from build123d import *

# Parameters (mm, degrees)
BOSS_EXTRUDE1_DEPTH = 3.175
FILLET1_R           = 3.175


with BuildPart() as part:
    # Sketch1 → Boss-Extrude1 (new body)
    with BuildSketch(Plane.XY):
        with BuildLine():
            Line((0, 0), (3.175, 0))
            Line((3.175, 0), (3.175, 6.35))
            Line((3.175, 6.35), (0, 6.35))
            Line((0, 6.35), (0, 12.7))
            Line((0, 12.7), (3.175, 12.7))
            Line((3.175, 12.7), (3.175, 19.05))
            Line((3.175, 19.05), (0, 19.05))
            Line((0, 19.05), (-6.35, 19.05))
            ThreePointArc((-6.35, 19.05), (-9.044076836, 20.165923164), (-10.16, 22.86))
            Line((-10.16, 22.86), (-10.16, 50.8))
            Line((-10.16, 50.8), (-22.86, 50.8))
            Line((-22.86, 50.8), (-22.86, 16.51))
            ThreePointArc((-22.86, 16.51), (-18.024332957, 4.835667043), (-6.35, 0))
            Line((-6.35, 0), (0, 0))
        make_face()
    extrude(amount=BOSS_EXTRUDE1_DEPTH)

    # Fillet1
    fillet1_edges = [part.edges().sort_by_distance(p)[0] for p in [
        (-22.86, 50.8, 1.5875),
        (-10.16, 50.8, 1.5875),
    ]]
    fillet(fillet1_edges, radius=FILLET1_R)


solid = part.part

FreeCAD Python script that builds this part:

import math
import FreeCAD as App
import Part
import Sketcher
Q = App.Units.Quantity


def edges_at(feature, points):
    """Names of the edges that pass closest to the given points."""
    edges = feature.Shape.Edges
    near = lambda p: min(range(len(edges)), key=lambda i: edges[i].distToShape(Part.Vertex(*p))[0])
    return sorted({f"Edge{near(p) + 1}" for p in points})

doc = App.newDocument("Part")
params = doc.addObject("Spreadsheet::Sheet", "Params")
for row, (alias, value) in enumerate([
    ("sketch1_radius", "0.15 in"),
    ("sketch1_radius2", "0.65 in"),
    ("sketch1_height", "1.1 in"),
    ("sketch1_width", "0.125 in"),
    ("pad1_length", "0.125 in"),
    ("fillet_radius", "0.125 in"),
], start=1):
    params.set(f"A{row}", alias)
    params.set(f"B{row}", "=" + value)
    params.setAlias(f"B{row}", alias)

body = doc.addObject("PartDesign::Body", "Body")

# Sketch on XY plane
sketch1 = doc.addObject("Sketcher::SketchObject", "Sketch")
body.addObject(sketch1)
sketch1.AttachmentSupport = (doc.XY_Plane, [""])
sketch1.MapMode = "FlatFace"
sketch1.addGeometry(Part.LineSegment(App.Vector(3.2, 0, 0), App.Vector(3.2, 6.3, 0)), False)
sketch1.addGeometry(Part.LineSegment(App.Vector(3.2, 6.3, 0), App.Vector(0, 6.3, 0)), False)
sketch1.addGeometry(Part.LineSegment(App.Vector(0, 6.3, 0), App.Vector(0, 12.7, 0)), False)
sketch1.addGeometry(Part.LineSegment(App.Vector(0, 12.7, 0), App.Vector(3.2, 12.7, 0)), False)
sketch1.addGeometry(Part.LineSegment(App.Vector(3.2, 12.7, 0), App.Vector(3.2, 19.1, 0)), False)
sketch1.addGeometry(Part.LineSegment(App.Vector(3.2, 19.1, 0), App.Vector(-6.3, 19.1, 0)), False)
sketch1.addGeometry(Part.ArcOfCircle(Part.Circle(App.Vector(-6.3, 22.9, 0), App.Vector(0, 0, 1), 3.8), math.radians(-180), math.radians(-90)), False)
sketch1.addGeometry(Part.LineSegment(App.Vector(-10.2, 22.9, 0), App.Vector(-10.2, 50.8, 0)), False)
sketch1.addGeometry(Part.LineSegment(App.Vector(-10.2, 50.8, 0), App.Vector(-22.9, 50.8, 0)), False)
sketch1.addGeometry(Part.LineSegment(App.Vector(-22.9, 50.8, 0), App.Vector(-22.9, 16.5, 0)), False)
sketch1.addGeometry(Part.ArcOfCircle(Part.Circle(App.Vector(-6.3, 16.5, 0), App.Vector(0, 0, 1), 16.5), math.radians(-180), math.radians(-90)), False)
sketch1.addGeometry(Part.LineSegment(App.Vector(-6.3, 0, 0), App.Vector(3.2, 0, 0)), False)
sketch1.addConstraint(Sketcher.Constraint("Coincident", 0, 2, 1, 1))
sketch1.addConstraint(Sketcher.Constraint("Coincident", 1, 2, 2, 1))
sketch1.addConstraint(Sketcher.Constraint("Coincident", 2, 2, 3, 1))
sketch1.addConstraint(Sketcher.Constraint("Coincident", 3, 2, 4, 1))
sketch1.addConstraint(Sketcher.Constraint("Coincident", 4, 2, 5, 1))
sketch1.addConstraint(Sketcher.Constraint("Tangent", 5, 2, 6, 2))
sketch1.addConstraint(Sketcher.Constraint("Tangent", 6, 1, 7, 1))
sketch1.addConstraint(Sketcher.Constraint("Coincident", 7, 2, 8, 1))
sketch1.addConstraint(Sketcher.Constraint("Coincident", 8, 2, 9, 1))
sketch1.addConstraint(Sketcher.Constraint("Tangent", 9, 2, 10, 1))
sketch1.addConstraint(Sketcher.Constraint("Tangent", 10, 2, 11, 1))
sketch1.addConstraint(Sketcher.Constraint("Coincident", 11, 2, 0, 1))
sketch1.addConstraint(Sketcher.Constraint("Vertical", 0))
sketch1.addConstraint(Sketcher.Constraint("Horizontal", 1))
sketch1.addConstraint(Sketcher.Constraint("Vertical", 2))
sketch1.addConstraint(Sketcher.Constraint("Horizontal", 3))
sketch1.addConstraint(Sketcher.Constraint("Vertical", 4))
sketch1.addConstraint(Sketcher.Constraint("Horizontal", 5))
sketch1.addConstraint(Sketcher.Constraint("Vertical", 7))
sketch1.addConstraint(Sketcher.Constraint("Horizontal", 8))
sketch1.addConstraint(Sketcher.Constraint("Vertical", 9))
sketch1.addConstraint(Sketcher.Constraint("Horizontal", 11))
sketch1.addConstraint(Sketcher.Constraint("PointOnObject", 1, 2, -2))
sketch1.addConstraint(Sketcher.Constraint("PointOnObject", 10, 2, -1))
sketch1.addConstraint(Sketcher.Constraint("Vertical", 6, 3, 10, 3))
sketch1.addConstraint(Sketcher.Constraint("Vertical", 0, 2, 3, 2))
sketch1.addConstraint(Sketcher.Constraint("Equal", 0, 2))
sketch1.addConstraint(Sketcher.Constraint("Equal", 2, 4))
sketch1.addConstraint(Sketcher.Constraint("Radius", 6, Q("0.15 in")))
sketch1.addConstraint(Sketcher.Constraint("Radius", 10, Q("0.65 in")))
sketch1.addConstraint(Sketcher.Constraint("DistanceY", 7, 1, 7, 2, Q("1.1 in")))
sketch1.addConstraint(Sketcher.Constraint("DistanceY", -1, 1, 7, 2, Q("2 in")))
sketch1.addConstraint(Sketcher.Constraint("DistanceX", 6, 1, -1, 1, Q("0.4 in")))
sketch1.addConstraint(Sketcher.Constraint("DistanceX", 1, 2, 1, 1, Q("0.125 in")))
sketch1.setExpression("Constraints[28]", "Params.sketch1_radius")
sketch1.setExpression("Constraints[29]", "Params.sketch1_radius2")
sketch1.setExpression("Constraints[30]", "Params.sketch1_height")
sketch1.setExpression("Constraints[33]", "Params.sketch1_width")
pad1 = doc.addObject("PartDesign::Pad", "Pad")
body.addObject(pad1)
pad1.Profile = sketch1
pad1.setExpression("Length", "Params.pad1_length")
doc.recompute()

fillet = doc.addObject("PartDesign::Fillet", "Fillet")
body.addObject(fillet)
fillet.Base = (pad1, edges_at(pad1, [(-22.86, 50.8, 1.587), (-10.16, 50.8, 1.587)]))
fillet.setExpression("Radius", "Params.fillet_radius")

doc.recompute()
